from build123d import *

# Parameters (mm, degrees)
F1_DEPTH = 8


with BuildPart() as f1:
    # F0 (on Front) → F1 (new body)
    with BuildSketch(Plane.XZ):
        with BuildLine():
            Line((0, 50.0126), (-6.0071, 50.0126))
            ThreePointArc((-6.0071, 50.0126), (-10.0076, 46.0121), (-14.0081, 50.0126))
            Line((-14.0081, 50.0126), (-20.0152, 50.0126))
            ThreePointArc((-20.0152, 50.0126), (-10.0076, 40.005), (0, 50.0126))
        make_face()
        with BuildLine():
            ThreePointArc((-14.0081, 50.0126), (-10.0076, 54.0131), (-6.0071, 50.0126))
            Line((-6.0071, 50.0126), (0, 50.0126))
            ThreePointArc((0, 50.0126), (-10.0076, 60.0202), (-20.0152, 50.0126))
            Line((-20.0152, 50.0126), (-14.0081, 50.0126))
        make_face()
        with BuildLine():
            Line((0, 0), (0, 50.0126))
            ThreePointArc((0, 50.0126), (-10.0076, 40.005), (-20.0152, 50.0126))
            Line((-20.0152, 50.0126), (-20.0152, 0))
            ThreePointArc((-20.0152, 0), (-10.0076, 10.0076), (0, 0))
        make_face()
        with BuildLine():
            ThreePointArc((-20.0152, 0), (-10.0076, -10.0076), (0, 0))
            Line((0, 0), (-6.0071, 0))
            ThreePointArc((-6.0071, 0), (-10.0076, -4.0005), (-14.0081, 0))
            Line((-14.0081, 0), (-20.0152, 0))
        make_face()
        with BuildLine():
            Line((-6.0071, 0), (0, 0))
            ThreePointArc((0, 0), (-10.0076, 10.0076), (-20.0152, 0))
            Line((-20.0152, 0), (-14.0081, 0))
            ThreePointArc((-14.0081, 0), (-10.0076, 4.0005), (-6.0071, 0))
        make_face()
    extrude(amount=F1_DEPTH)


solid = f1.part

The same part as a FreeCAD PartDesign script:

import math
import FreeCAD as App
import Part
import Sketcher
Q = App.Units.Quantity

doc = App.newDocument("Part")
body = doc.addObject("PartDesign::Body", "Body")

sketch1 = body.newObject("Sketcher::SketchObject", "Sketch")
sketch1.AttachmentSupport = (doc.getObject("XZ_Plane"), [""])
sketch1.MapMode = "FlatFace"
sketch1.addGeometry(Part.ArcOfCircle(Part.Circle(App.Vector(-10.0076, 50.0126, 0), App.Vector(0, 0, 1), 10.0076), math.radians(0), math.radians(180)), False)
sketch1.addGeometry(Part.LineSegment(App.Vector(-20.0152, 50.0126, 0), App.Vector(-20.0152, 0, 0)), False)
sketch1.addGeometry(Part.ArcOfCircle(Part.Circle(App.Vector(-10.0076, 0, 0), App.Vector(0, 0, 1), 10.0076), math.radians(180), math.radians(360)), False)
sketch1.addGeometry(Part.LineSegment(App.Vector(0, 0, 0), App.Vector(0, 50.0126, 0)), False)
sketch1.addGeometry(Part.Circle(App.Vector(-10.0076, 50.0126, 0), App.Vector(0, 0, 1), 4.0005), False)
sketch1.addGeometry(Part.Circle(App.Vector(-10.0076, 0, 0), App.Vector(0, 0, 1), 4.0005), False)
sketch1.addConstraint(Sketcher.Constraint("Tangent", 0, 2, 1, 1))
sketch1.addConstraint(Sketcher.Constraint("Tangent", 1, 2, 2, 1))
sketch1.addConstraint(Sketcher.Constraint("Tangent", 2, 2, 3, 1))
sketch1.addConstraint(Sketcher.Constraint("Tangent", 3, 2, 0, 1))
sketch1.addConstraint(Sketcher.Constraint("Vertical", 1))
sketch1.addConstraint(Sketcher.Constraint("Vertical", 3))
sketch1.addConstraint(Sketcher.Constraint("Coincident", 2, 2, -1, 1))
sketch1.addConstraint(Sketcher.Constraint("Coincident", 4, 3, 0, 3))
sketch1.addConstraint(Sketcher.Constraint("Coincident", 5, 3, 2, 3))
sketch1.addConstraint(Sketcher.Constraint("Equal", 4, 5))
sketch1.addConstraint(Sketcher.Constraint("Diameter", 4, Q("0.315 in")))
sketch1.addConstraint(Sketcher.Constraint("Radius", 0, Q("0.394 in")))
sketch1.addConstraint(Sketcher.Constraint("DistanceY", 1, 2, 1, 1, Q("1.969 in")))
pad1 = body.newObject("PartDesign::Pad", "Pad")
pad1.Profile = sketch1
pad1.Length = 8

doc.recompute()
